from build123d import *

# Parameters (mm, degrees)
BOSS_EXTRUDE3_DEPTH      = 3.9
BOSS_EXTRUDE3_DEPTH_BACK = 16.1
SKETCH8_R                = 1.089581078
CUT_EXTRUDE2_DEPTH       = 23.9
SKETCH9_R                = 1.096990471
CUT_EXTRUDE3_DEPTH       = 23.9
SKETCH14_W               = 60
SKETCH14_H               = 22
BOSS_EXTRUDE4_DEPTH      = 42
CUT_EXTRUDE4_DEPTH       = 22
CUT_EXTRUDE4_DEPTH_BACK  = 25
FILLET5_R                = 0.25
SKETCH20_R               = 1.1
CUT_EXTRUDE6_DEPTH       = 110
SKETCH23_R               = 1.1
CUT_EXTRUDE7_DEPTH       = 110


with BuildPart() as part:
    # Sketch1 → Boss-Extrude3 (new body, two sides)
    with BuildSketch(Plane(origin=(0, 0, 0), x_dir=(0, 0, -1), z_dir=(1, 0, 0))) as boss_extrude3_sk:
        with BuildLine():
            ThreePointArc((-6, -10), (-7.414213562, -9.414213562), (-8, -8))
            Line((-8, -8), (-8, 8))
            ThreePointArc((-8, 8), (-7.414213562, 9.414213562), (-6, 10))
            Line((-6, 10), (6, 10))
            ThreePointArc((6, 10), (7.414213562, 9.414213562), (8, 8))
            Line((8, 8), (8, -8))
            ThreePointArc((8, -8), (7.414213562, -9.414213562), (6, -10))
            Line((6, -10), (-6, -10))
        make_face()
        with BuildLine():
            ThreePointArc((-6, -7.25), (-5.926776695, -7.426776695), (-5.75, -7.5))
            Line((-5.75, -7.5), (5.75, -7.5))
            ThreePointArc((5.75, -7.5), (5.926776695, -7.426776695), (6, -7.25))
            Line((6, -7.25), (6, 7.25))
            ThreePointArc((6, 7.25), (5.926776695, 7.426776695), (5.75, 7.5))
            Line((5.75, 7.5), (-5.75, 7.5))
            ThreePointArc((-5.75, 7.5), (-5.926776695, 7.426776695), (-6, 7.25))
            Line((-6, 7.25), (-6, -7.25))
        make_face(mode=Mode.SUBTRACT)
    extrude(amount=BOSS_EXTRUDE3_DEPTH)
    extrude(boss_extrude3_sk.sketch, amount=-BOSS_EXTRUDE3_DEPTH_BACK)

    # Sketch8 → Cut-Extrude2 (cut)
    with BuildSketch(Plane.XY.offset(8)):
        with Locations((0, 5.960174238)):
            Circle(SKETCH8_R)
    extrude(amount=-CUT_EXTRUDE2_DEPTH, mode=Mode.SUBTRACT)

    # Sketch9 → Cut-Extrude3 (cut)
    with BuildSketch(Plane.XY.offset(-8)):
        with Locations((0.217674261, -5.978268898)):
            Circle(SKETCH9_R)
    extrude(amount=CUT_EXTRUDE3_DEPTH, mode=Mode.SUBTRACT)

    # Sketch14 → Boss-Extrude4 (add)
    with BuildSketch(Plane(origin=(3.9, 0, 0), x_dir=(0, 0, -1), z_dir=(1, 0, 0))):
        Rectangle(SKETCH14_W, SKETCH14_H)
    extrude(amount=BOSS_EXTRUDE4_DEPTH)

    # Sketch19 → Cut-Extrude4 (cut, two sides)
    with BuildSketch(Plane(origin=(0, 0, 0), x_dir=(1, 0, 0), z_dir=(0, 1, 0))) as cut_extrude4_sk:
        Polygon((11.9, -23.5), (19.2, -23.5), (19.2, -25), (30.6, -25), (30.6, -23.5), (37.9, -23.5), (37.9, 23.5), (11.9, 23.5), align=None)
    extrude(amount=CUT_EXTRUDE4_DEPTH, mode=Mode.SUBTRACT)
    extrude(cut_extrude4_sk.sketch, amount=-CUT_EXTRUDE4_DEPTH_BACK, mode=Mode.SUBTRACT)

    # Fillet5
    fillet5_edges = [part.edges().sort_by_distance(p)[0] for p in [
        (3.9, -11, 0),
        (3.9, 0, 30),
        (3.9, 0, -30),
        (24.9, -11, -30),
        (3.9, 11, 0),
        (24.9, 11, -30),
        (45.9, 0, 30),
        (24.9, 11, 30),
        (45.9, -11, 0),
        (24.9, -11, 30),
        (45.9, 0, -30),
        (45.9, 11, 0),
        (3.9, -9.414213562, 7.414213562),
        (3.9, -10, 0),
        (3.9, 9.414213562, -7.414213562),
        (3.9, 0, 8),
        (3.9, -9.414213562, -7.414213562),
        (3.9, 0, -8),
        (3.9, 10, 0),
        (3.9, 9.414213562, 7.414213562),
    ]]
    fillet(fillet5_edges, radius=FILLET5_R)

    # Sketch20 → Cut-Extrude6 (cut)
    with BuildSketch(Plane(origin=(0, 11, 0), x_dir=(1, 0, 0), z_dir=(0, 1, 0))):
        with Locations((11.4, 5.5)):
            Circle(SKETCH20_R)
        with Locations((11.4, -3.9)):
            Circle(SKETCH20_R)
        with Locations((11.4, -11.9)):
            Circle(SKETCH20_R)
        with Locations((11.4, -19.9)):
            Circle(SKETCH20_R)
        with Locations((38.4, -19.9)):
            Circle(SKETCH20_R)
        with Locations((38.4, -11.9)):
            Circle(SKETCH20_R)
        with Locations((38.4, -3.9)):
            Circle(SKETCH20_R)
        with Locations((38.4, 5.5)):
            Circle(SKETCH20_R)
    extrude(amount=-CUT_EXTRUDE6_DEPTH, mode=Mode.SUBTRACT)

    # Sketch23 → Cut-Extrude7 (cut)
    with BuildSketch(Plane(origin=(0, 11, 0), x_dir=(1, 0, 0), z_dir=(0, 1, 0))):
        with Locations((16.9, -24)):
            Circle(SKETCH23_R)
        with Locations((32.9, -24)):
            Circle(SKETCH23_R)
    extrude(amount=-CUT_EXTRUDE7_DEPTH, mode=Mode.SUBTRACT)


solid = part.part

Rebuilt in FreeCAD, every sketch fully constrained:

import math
import FreeCAD as App
import Part
import Sketcher

V = App.Vector


def edges_at(feature, points):
    """Names of the edges that pass closest to the given points."""
    edges = feature.Shape.Edges
    near = lambda p: min(range(len(edges)), key=lambda i: edges[i].distToShape(Part.Vertex(*p))[0])
    return sorted({f"Edge{near(p) + 1}" for p in points})


def add_polygon(sketch, points):
    """Adds a closed chain of lines whose ends are joined by coincident constraints."""
    first, n = sketch.GeometryCount, len(points)
    for a, b in zip(points, points[1:] + points[:1]):
        sketch.addGeometry(Part.LineSegment(App.Vector(*a, 0), App.Vector(*b, 0)), False)
    for i in range(n):
        sketch.addConstraint(Sketcher.Constraint("Coincident", first + i, 2, first + (i + 1) % n, 1))

doc = App.newDocument("Part")
body = doc.addObject("PartDesign::Body", "Body")

# Sketch on YZ plane
sketch1 = body.newObject("Sketcher::SketchObject", "Sketch")
sketch1.AttachmentSupport = (doc.getObject("YZ_Plane"), [""])
sketch1.MapMode = "FlatFace"
sketch1.addGeometry([
    Part.ArcOfCircle(Part.Circle(V(-8, 6, 0), V(0, 0, 1), 2), math.radians(90), math.radians(180)),  # 0
    Part.LineSegment(V(-10, 6, 0), V(-10, -6, 0)),  # 1
    Part.ArcOfCircle(Part.Circle(V(-8, -6, 0), V(0, 0, 1), 2), math.radians(-180), math.radians(-90)),  # 2
    Part.LineSegment(V(-8, -8, 0), V(8, -8, 0)),  # 3
    Part.ArcOfCircle(Part.Circle(V(8, -6, 0), V(0, 0, 1), 2), math.radians(-90), math.radians(0)),  # 4
    Part.LineSegment(V(10, -6, 0), V(10, 6, 0)),  # 5
    Part.ArcOfCircle(Part.Circle(V(8, 6, 0), V(0, 0, 1), 2), math.radians(0), math.radians(90)),  # 6
    Part.LineSegment(V(8, 8, 0), V(-8, 8, 0)),  # 7
    Part.LineSegment(V(-7.25, 6, 0), V(7.25, 6, 0)),  # 8
    Part.ArcOfCircle(Part.Circle(V(7.25, 5.75, 0), V(0, 0, 1), 0.25), math.radians(0), math.radians(90)),  # 9
    Part.LineSegment(V(7.5, 5.75, 0), V(7.5, -5.75, 0)),  # 10
    Part.ArcOfCircle(Part.Circle(V(7.25, -5.75, 0), V(0, 0, 1), 0.25), math.radians(-90), math.radians(0)),  # 11
    Part.LineSegment(V(7.25, -6, 0), V(-7.25, -6, 0)),  # 12
    Part.ArcOfCircle(Part.Circle(V(-7.25, -5.75, 0), V(0, 0, 1), 0.25), math.radians(-180), math.radians(-90)),  # 13
    Part.LineSegment(V(-7.5, -5.75, 0), V(-7.5, 5.75, 0)),  # 14
    Part.ArcOfCircle(Part.Circle(V(-7.25, 5.75, 0), V(0, 0, 1), 0.25), math.radians(90), math.radians(180)),  # 15
], False)
sketch1.addConstraint([
    Sketcher.Constraint("Tangent", 0, 2, 1, 1),
    Sketcher.Constraint("Tangent", 1, 2, 2, 1),
    Sketcher.Constraint("Tangent", 2, 2, 3, 1),
    Sketcher.Constraint("Tangent", 3, 2, 4, 1),
    Sketcher.Constraint("Tangent", 4, 2, 5, 1),
    Sketcher.Constraint("Tangent", 5, 2, 6, 1),
    Sketcher.Constraint("Tangent", 6, 2, 7, 1),
    Sketcher.Constraint("Tangent", 7, 2, 0, 1),
    Sketcher.Constraint("Tangent", 8, 2, 9, 2),
    Sketcher.Constraint("Tangent", 9, 1, 10, 1),
    Sketcher.Constraint("Tangent", 10, 2, 11, 2),
    Sketcher.Constraint("Tangent", 11, 1, 12, 1),
    Sketcher.Constraint("Tangent", 12, 2, 13, 2),
    Sketcher.Constraint("Tangent", 13, 1, 14, 1),
    Sketcher.Constraint("Tangent", 14, 2, 15, 2),
    Sketcher.Constraint("Tangent", 15, 1, 8, 1),
    Sketcher.Constraint("Vertical", 1),
    Sketcher.Constraint("Horizontal", 3),
    Sketcher.Constraint("Vertical", 5),
    Sketcher.Constraint("Horizontal", 7),
    Sketcher.Constraint("Horizontal", 8),
    Sketcher.Constraint("Vertical", 10),
    Sketcher.Constraint("Horizontal", 12),
    Sketcher.Constraint("Vertical", 14),
    Sketcher.Constraint("Equal", 0, 2),
    Sketcher.Constraint("Equal", 2, 4),
    Sketcher.Constraint("Equal", 4, 6),
    Sketcher.Constraint("Equal", 9, 11),
    Sketcher.Constraint("Equal", 11, 13),
    Sketcher.Constraint("Equal", 13, 15),
    Sketcher.Constraint("Symmetric", 0, 3, 4, 3, -1, 1),
    Sketcher.Constraint("Symmetric", 9, 3, 13, 3, -1, 1),
    Sketcher.Constraint("Horizontal", 5, 2, 8, 2),
    Sketcher.Constraint("Radius", 0, 2.0),
    Sketcher.Constraint("DistanceX", 3, 1, 3, 2, 16.0),
    Sketcher.Constraint("DistanceY", 1, 2, 1, 1, 12.0),
    Sketcher.Constraint("Radius", 9, 0.25),
    Sketcher.Constraint("DistanceX", 8, 1, 8, 2, 14.5),
])
pad1 = body.newObject("PartDesign::Pad", "Pad")
pad1.Profile = sketch1
pad1.Type = "TwoLengths"
pad1.Length = 3.9
pad1.Length2 = 16.1

# Sketch on XY plane
sketch2 = body.newObject("Sketcher::SketchObject", "Sketch001")
sketch2.AttachmentSupport = (doc.getObject("XY_Plane"), [""])
sketch2.MapMode = "FlatFace"
sketch2.AttachmentOffset = App.Placement(V(0, 0, 8), App.Rotation())
sketch2.addGeometry(Part.Circle(V(0, 6, 0), V(0, 0, 1), 1.1), False)
sketch2.addConstraint([
    Sketcher.Constraint("PointOnObject", 0, 3, -2),
    Sketcher.Constraint("Diameter", 0, 2.179162),
    Sketcher.Constraint("DistanceY", -1, 1, 0, 3, 5.960174),
])
pocket1 = body.newObject("PartDesign::Pocket", "Pocket")
pocket1.Profile = sketch2
pocket1.Length = 23.9

# Sketch on XY plane
sketch3 = body.newObject("Sketcher::SketchObject", "Sketch002")
sketch3.AttachmentSupport = (doc.getObject("XY_Plane"), [""])
sketch3.MapMode = "FlatFace"
sketch3.AttachmentOffset = App.Placement(V(0, 0, -8), App.Rotation())
sketch3.addGeometry(Part.Circle(V(0.2, -6, 0), V(0, 0, 1), 1.1), False)
sketch3.addConstraint([
    Sketcher.Constraint("Diameter", 0, 2.193981),
    Sketcher.Constraint("DistanceY", 0, 3, -1, 1, 5.978269),
    Sketcher.Constraint("DistanceX", -1, 1, 0, 3, 0.217674),
])
pocket2 = body.newObject("PartDesign::Pocket", "Pocket001")
pocket2.Profile = sketch3
pocket2.Length = 23.9
pocket2.Reversed = True

# Sketch on YZ plane
sketch4 = body.newObject("Sketcher::SketchObject", "Sketch003")
sketch4.AttachmentSupport = (doc.getObject("YZ_Plane"), [""])
sketch4.MapMode = "FlatFace"
sketch4.AttachmentOffset = App.Placement(V(0, 0, 3.9), App.Rotation())
add_polygon(sketch4, [(11, 30), (-11, 30), (-11, -30), (11, -30)])  # lines 0-3
sketch4.addConstraint([
    Sketcher.Constraint("Horizontal", 0),
    Sketcher.Constraint("Vertical", 1),
    Sketcher.Constraint("Horizontal", 2),
    Sketcher.Constraint("Vertical", 3),
    Sketcher.Constraint("Symmetric", 0, 2, 2, 2, -1, 1),
    Sketcher.Constraint("DistanceX", 0, 2, 0, 1, 22.0),
    Sketcher.Constraint("DistanceY", 1, 2, 1, 1, 60.0),
])
pad2 = body.newObject("PartDesign::Pad", "Pad001")
pad2.Profile = sketch4
pad2.Length = 42

# Sketch on XZ plane
sketch5 = body.newObject("Sketcher::SketchObject", "Sketch004")
sketch5.AttachmentSupport = (doc.getObject("XZ_Plane"), [""])
sketch5.MapMode = "FlatFace"
add_polygon(sketch5, [(11.9, 23.5), (19.2, 23.5), (19.2, 25), (30.6, 25), (30.6, 23.5), (37.9, 23.5), (37.9, -23.5), (11.9, -23.5)])  # lines 0-7
sketch5.addConstraint([
    Sketcher.Constraint("Horizontal", 0),
    Sketcher.Constraint("Vertical", 1),
    Sketcher.Constraint("Horizontal", 2),
    Sketcher.Constraint("Vertical", 3),
    Sketcher.Constraint("Horizontal", 4),
    Sketcher.Constraint("Vertical", 5),
    Sketcher.Constraint("Horizontal", 6),
    Sketcher.Constraint("Vertical", 7),
    Sketcher.Constraint("Horizontal", 0, 2, 3, 2),
    Sketcher.Constraint("Equal", 0, 4),
    Sketcher.Constraint("DistanceX", 6, 2, 6, 1, 26.0),
    Sketcher.Constraint("DistanceY", 5, 2, 5, 1, 47.0),
    Sketcher.Constraint("DistanceX", 0, 1, 0, 2, 7.3),
    Sketcher.Constraint("DistanceY", 1, 1, 1, 2, 1.5),
    Sketcher.Constraint("DistanceY", -1, 1, 1, 2, 25.0),
    Sketcher.Constraint("DistanceX", -1, 1, 0, 2, 19.2),
])
pocket3 = body.newObject("PartDesign::Pocket", "Pocket002")
pocket3.Profile = sketch5
pocket3.Type = "ThroughAll"
pocket3.Midplane = True
doc.recompute()

fillet = body.newObject("PartDesign::Fillet", "Fillet")
fillet.Base = (pocket3, edges_at(pocket3, [
    (3.9, -11, 0),
    (3.9, 0, 30),
    (3.9, 0, -30),
    (24.9, -11, -30),
    (3.9, 11, 0),
    (24.9, 11, -30),
    (45.9, 0, 30),
    (24.9, 11, 30),
    (45.9, -11, 0),
    (24.9, -11, 30),
    (45.9, 0, -30),
    (45.9, 11, 0),
    (3.9, -9.414, 7.414),
    (3.9, -10, 0),
    (3.9, 9.414, -7.414),
    (3.9, 0, 8),
    (3.9, -9.414, -7.414),
    (3.9, 0, -8),
    (3.9, 10, 0),
    (3.9, 9.414, 7.414),
]))
fillet.Radius = 0.25

# Sketch on XZ plane
sketch6 = body.newObject("Sketcher::SketchObject", "Sketch005")
sketch6.AttachmentSupport = (doc.getObject("XZ_Plane"), [""])
sketch6.MapMode = "FlatFace"
sketch6.AttachmentOffset = App.Placement(V(0, 0, -11), App.Rotation())
sketch6.addGeometry([
    Part.Circle(V(11.4, -5.5, 0), V(0, 0, 1), 1.1),  # 0
    Part.Circle(V(11.4, 3.9, 0), V(0, 0, 1), 1.1),  # 1
    Part.Circle(V(11.4, 11.9, 0), V(0, 0, 1), 1.1),  # 2
    Part.Circle(V(11.4, 19.9, 0), V(0, 0, 1), 1.1),  # 3
    Part.Circle(V(38.4, 19.9, 0), V(0, 0, 1), 1.1),  # 4
    Part.Circle(V(38.4, 11.9, 0), V(0, 0, 1), 1.1),  # 5
    Part.Circle(V(38.4, 3.9, 0), V(0, 0, 1), 1.1),  # 6
    Part.Circle(V(38.4, -5.5, 0), V(0, 0, 1), 1.1),  # 7
], False)
sketch6.addConstraint([
    Sketcher.Constraint("Equal", 0, 1),
    Sketcher.Constraint("Equal", 1, 2),
    Sketcher.Constraint("Equal", 2, 3),
    Sketcher.Constraint("Equal", 3, 4),
    Sketcher.Constraint("Equal", 4, 5),
    Sketcher.Constraint("Equal", 5, 6),
    Sketcher.Constraint("Equal", 6, 7),
    Sketcher.Constraint("Horizontal", 3, 3, 4, 3),
    Sketcher.Constraint("Horizontal", 2, 3, 5, 3),
    Sketcher.Constraint("Horizontal", 1, 3, 6, 3),
    Sketcher.Constraint("Horizontal", 0, 3, 7, 3),
    Sketcher.Constraint("Vertical", 0, 3, 1, 3),
    Sketcher.Constraint("Vertical", 1, 3, 2, 3),
    Sketcher.Constraint("Vertical", 2, 3, 3, 3),
    Sketcher.Constraint("Vertical", 4, 3, 5, 3),
    Sketcher.Constraint("Vertical", 5, 3, 6, 3),
    Sketcher.Constraint("Vertical", 6, 3, 7, 3),
    Sketcher.Constraint("Diameter", 0, 2.2),
    Sketcher.Constraint("DistanceY", 1, 3, 2, 3, 8.0),
    Sketcher.Constraint("DistanceY", 2, 3, 3, 3, 8.0),
    Sketcher.Constraint("DistanceX", 3, 3, 4, 3, 27.0),
    Sketcher.Constraint("DistanceX", -1, 1, 0, 3, 11.4),
    Sketcher.Constraint("DistanceY", 0, 3, -1, 1, 5.5),
    Sketcher.Constraint("DistanceY", -1, 1, 1, 3, 3.9),
])
pocket4 = body.newObject("PartDesign::Pocket", "Pocket003")
pocket4.Profile = sketch6
pocket4.Length = 110
pocket4.Reversed = True

# Sketch on XZ plane
sketch7 = body.newObject("Sketcher::SketchObject", "Sketch006")
sketch7.AttachmentSupport = (doc.getObject("XZ_Plane"), [""])
sketch7.MapMode = "FlatFace"
sketch7.AttachmentOffset = App.Placement(V(0, 0, -11), App.Rotation())
sketch7.addGeometry([
    Part.Circle(V(16.9, 24, 0), V(0, 0, 1), 1.1),
    Part.Circle(V(32.9, 24, 0), V(0, 0, 1), 1.1),
], False)
sketch7.addConstraint([
    Sketcher.Constraint("Equal", 0, 1),
    Sketcher.Constraint("Horizontal", 0, 3, 1, 3),
    Sketcher.Constraint("Diameter", 0, 2.2),
    Sketcher.Constraint("DistanceY", -1, 1, 0, 3, 24.0),
    Sketcher.Constraint("DistanceX", 0, 3, 1, 3, 16.0),
    Sketcher.Constraint("DistanceX", -1, 1, 0, 3, 16.9),
])
pocket5 = body.newObject("PartDesign::Pocket", "Pocket004")
pocket5.Profile = sketch7
pocket5.Length = 110
pocket5.Reversed = True

doc.recompute()
